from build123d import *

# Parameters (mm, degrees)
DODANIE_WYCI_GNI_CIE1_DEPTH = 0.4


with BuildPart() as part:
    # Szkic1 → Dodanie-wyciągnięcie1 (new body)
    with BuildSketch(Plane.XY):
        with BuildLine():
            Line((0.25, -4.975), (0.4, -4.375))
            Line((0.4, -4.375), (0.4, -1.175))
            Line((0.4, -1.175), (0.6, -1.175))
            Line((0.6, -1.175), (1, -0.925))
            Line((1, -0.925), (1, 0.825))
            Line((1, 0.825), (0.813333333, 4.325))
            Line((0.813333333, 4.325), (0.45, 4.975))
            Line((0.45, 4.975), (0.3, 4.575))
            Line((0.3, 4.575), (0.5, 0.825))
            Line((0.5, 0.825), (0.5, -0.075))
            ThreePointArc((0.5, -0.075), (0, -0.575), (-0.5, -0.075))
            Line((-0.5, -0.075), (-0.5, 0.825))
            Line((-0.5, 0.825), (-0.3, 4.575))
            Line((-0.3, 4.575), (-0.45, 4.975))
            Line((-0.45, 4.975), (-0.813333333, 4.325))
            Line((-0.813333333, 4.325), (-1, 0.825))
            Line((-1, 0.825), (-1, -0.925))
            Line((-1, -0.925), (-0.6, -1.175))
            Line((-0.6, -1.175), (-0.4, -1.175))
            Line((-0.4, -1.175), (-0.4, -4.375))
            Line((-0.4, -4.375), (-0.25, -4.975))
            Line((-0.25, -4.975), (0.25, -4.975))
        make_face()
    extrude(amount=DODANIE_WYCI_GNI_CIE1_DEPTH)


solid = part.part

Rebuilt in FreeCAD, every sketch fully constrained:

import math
import FreeCAD as App
import Part
import Sketcher
Q = App.Units.Quantity

doc = App.newDocument("Part")
body = doc.addObject("PartDesign::Body", "Body")

# Sketch on XY plane
sketch1 = body.newObject("Sketcher::SketchObject", "Sketch")
sketch1.AttachmentSupport = (doc.getObject("XY_Plane"), [""])
sketch1.MapMode = "FlatFace"
sketch1.addGeometry([
    Part.LineSegment(App.Vector(0.25, -4.975, 0), App.Vector(0.4, -4.375, 0)),  # 0
    Part.LineSegment(App.Vector(0.4, -4.375, 0), App.Vector(0.4, -1.175, 0)),  # 1
    Part.LineSegment(App.Vector(0.4, -1.175, 0), App.Vector(0.6, -1.175, 0)),  # 2
    Part.LineSegment(App.Vector(0.6, -1.175, 0), App.Vector(1, -0.925, 0)),  # 3
    Part.LineSegment(App.Vector(1, -0.925, 0), App.Vector(1, 0.825, 0)),  # 4
    Part.LineSegment(App.Vector(1, 0.825, 0), App.Vector(0.813333, 4.325, 0)),  # 5
    Part.LineSegment(App.Vector(0.813333, 4.325, 0), App.Vector(0.45, 4.975, 0)),  # 6
    Part.LineSegment(App.Vector(0.45, 4.975, 0), App.Vector(0.3, 4.575, 0)),  # 7
    Part.LineSegment(App.Vector(0.3, 4.575, 0), App.Vector(0.5, 0.825, 0)),  # 8
    Part.LineSegment(App.Vector(0.5, 0.825, 0), App.Vector(0.5, -0.075, 0)),  # 9
    Part.ArcOfCircle(Part.Circle(App.Vector(0, -0.075, 0), App.Vector(0, 0, 1), 0.5), math.radians(180), math.radians(360)),  # 10
    Part.LineSegment(App.Vector(-0.5, -0.075, 0), App.Vector(-0.5, 0.825, 0)),  # 11
    Part.LineSegment(App.Vector(-0.5, 0.825, 0), App.Vector(-0.3, 4.575, 0)),  # 12
    Part.LineSegment(App.Vector(-0.3, 4.575, 0), App.Vector(-0.45, 4.975, 0)),  # 13
    Part.LineSegment(App.Vector(-0.45, 4.975, 0), App.Vector(-0.813333, 4.325, 0)),  # 14
    Part.LineSegment(App.Vector(-0.813333, 4.325, 0), App.Vector(-1, 0.825, 0)),  # 15
    Part.LineSegment(App.Vector(-1, 0.825, 0), App.Vector(-1, -0.925, 0)),  # 16
    Part.LineSegment(App.Vector(-1, -0.925, 0), App.Vector(-0.6, -1.175, 0)),  # 17
    Part.LineSegment(App.Vector(-0.6, -1.175, 0), App.Vector(-0.4, -1.175, 0)),  # 18
    Part.LineSegment(App.Vector(-0.4, -1.175, 0), App.Vector(-0.4, -4.375, 0)),  # 19
    Part.LineSegment(App.Vector(-0.4, -4.375, 0), App.Vector(-0.25, -4.975, 0)),  # 20
    Part.LineSegment(App.Vector(-0.25, -4.975, 0), App.Vector(0.25, -4.975, 0)),  # 21
], False)
sketch1.addConstraint([
    Sketcher.Constraint("Coincident", 0, 2, 1, 1),
    Sketcher.Constraint("Coincident", 1, 2, 2, 1),
    Sketcher.Constraint("Coincident", 2, 2, 3, 1),
    Sketcher.Constraint("Coincident", 3, 2, 4, 1),
    Sketcher.Constraint("Coincident", 4, 2, 5, 1),
    Sketcher.Constraint("Coincident", 5, 2, 6, 1),
    Sketcher.Constraint("Coincident", 6, 2, 7, 1),
    Sketcher.Constraint("Coincident", 7, 2, 8, 1),
    Sketcher.Constraint("Coincident", 8, 2, 9, 1),
    Sketcher.Constraint("Tangent", 9, 2, 10, 2),
    Sketcher.Constraint("Tangent", 10, 1, 11, 1),
    Sketcher.Constraint("Coincident", 11, 2, 12, 1),
    Sketcher.Constraint("Coincident", 12, 2, 13, 1),
    Sketcher.Constraint("Coincident", 13, 2, 14, 1),
    Sketcher.Constraint("Coincident", 14, 2, 15, 1),
    Sketcher.Constraint("Coincident", 15, 2, 16, 1),
    Sketcher.Constraint("Coincident", 16, 2, 17, 1),
    Sketcher.Constraint("Coincident", 17, 2, 18, 1),
    Sketcher.Constraint("Coincident", 18, 2, 19, 1),
    Sketcher.Constraint("Coincident", 19, 2, 20, 1),
    Sketcher.Constraint("Coincident", 20, 2, 21, 1),
    Sketcher.Constraint("Coincident", 21, 2, 0, 1),
    Sketcher.Constraint("Vertical", 1),
    Sketcher.Constraint("Horizontal", 2),
    Sketcher.Constraint("Vertical", 4),
    Sketcher.Constraint("Vertical", 9),
    Sketcher.Constraint("Vertical", 11),
    Sketcher.Constraint("Vertical", 16),
    Sketcher.Constraint("Horizontal", 18),
    Sketcher.Constraint("Vertical", 19),
    Sketcher.Constraint("Horizontal", 21),
    Sketcher.Constraint("Symmetric", 8, 2, 11, 2, -2),
    Sketcher.Constraint("Symmetric", 7, 2, 12, 2, -2),
    Sketcher.Constraint("Symmetric", 6, 2, 13, 2, -2),
    Sketcher.Constraint("Symmetric", 5, 2, 14, 2, -2),
    Sketcher.Constraint("Symmetric", 4, 2, 15, 2, -2),
    Sketcher.Constraint("Symmetric", 2, 2, 17, 2, -2),
    Sketcher.Constraint("Symmetric", 0, 2, 19, 2, -2),
    Sketcher.Constraint("Parallel", 5, 8),
    Sketcher.Constraint("Horizontal", 4, 2, 8, 2),
    Sketcher.Constraint("Horizontal", 3, 2, 16, 2),
    Sketcher.Constraint("Equal", 0, 20),
    Sketcher.Constraint("Radius", 10, Q("0.5 mm")),
    Sketcher.Constraint("DistanceX", 2, 1, 2, 2, Q("0.2 mm")),
    Sketcher.Constraint("DistanceX", 21, 1, 21, 2, Q("0.5 mm")),
    Sketcher.Constraint("DistanceY", 1, 1, 1, 2, Q("3.2 mm")),
    Sketcher.Constraint("DistanceY", 9, 2, 9, 1, Q("0.9 mm")),
    Sketcher.Constraint("DistanceX", -1, 1, 3, 2, Q("1 mm")),
    Sketcher.Constraint("DistanceY", 2, 2, 4, 2, Q("2 mm")),
    Sketcher.Constraint("DistanceX", 17, 2, 1, 2, Q("1 mm")),
    Sketcher.Constraint("DistanceY", 4, 1, 4, 2, Q("1.75 mm")),
    Sketcher.Constraint("DistanceX", -1, 1, 7, 2, Q("0.3 mm")),
    Sketcher.Constraint("DistanceY", 4, 2, 5, 2, Q("3.5 mm")),
    Sketcher.Constraint("DistanceY", 3, 2, 6, 2, Q("5.9 mm")),
    Sketcher.Constraint("DistanceY", 7, 2, 6, 2, Q("0.4 mm")),
    Sketcher.Constraint("DistanceX", 13, 2, 6, 2, Q("0.9 mm")),
    Sketcher.Constraint("DistanceY", 20, 2, 19, 2, Q("0.6 mm")),
    Sketcher.Constraint("DistanceY", 10, 3, -1, 1, Q("0.075 mm")),
])
pad1 = body.newObject("PartDesign::Pad", "Pad")
pad1.Profile = sketch1
pad1.Length = 0.4

doc.recompute()
